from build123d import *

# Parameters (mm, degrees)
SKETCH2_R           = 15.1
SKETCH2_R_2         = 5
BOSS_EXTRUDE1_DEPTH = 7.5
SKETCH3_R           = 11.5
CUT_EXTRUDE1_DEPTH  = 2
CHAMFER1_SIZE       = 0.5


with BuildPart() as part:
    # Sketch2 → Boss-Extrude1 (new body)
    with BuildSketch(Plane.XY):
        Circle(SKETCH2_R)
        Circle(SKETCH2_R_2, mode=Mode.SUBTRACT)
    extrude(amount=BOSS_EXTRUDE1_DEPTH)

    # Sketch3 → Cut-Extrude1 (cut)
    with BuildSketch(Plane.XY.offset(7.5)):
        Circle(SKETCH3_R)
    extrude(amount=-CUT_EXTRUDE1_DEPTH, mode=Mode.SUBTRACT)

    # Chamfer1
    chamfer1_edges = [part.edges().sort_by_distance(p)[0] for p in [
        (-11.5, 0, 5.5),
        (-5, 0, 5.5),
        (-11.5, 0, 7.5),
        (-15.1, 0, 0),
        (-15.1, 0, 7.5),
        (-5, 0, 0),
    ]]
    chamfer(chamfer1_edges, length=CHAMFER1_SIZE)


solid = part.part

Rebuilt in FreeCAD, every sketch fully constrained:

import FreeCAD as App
import Part
import Sketcher

V = App.Vector


def edges_at(feature, points):
    """Names of the edges that pass closest to the given points."""
    edges = feature.Shape.Edges
    near = lambda p: min(range(len(edges)), key=lambda i: edges[i].distToShape(Part.Vertex(*p))[0])
    return sorted({f"Edge{near(p) + 1}" for p in points})

doc = App.newDocument("Part")
body = doc.addObject("PartDesign::Body", "Body")

sketch1 = body.newObject("Sketcher::SketchObject", "Sketch")
sketch1.AttachmentSupport = (doc.getObject("XY_Plane"), [""])
sketch1.MapMode = "FlatFace"
sketch1.addGeometry([
    Part.Circle(V(0, 0, 0), V(0, 0, 1), 15),
    Part.Circle(V(0, 0, 0), V(0, 0, 1), 5),
], False)
sketch1.addConstraint([
    Sketcher.Constraint("Coincident", 0, 3, -1, 1),
    Sketcher.Constraint("Coincident", 1, 3, -1, 1),
    Sketcher.Constraint("Diameter", 1, 10.0),
    Sketcher.Constraint("Diameter", 0, 30.2),
])
pad1 = body.newObject("PartDesign::Pad", "Pad")
pad1.Profile = sketch1
pad1.Length = 7.5

sketch2 = body.newObject("Sketcher::SketchObject", "Sketch001")
sketch2.AttachmentSupport = (doc.getObject("XY_Plane"), [""])
sketch2.MapMode = "FlatFace"
sketch2.AttachmentOffset = App.Placement(V(0, 0, 7.5), App.Rotation())
sketch2.addGeometry(Part.Circle(V(0, 0, 0), V(0, 0, 1), 12), False)
sketch2.addConstraint([
    Sketcher.Constraint("Coincident", 0, 3, -1, 1),
    Sketcher.Constraint("Diameter", 0, 23.0),
])
pocket1 = body.newObject("PartDesign::Pocket", "Pocket")
pocket1.Profile = sketch2
pocket1.Length = 2
doc.recompute()

chamfer = body.newObject("PartDesign::Chamfer", "Chamfer")
chamfer.Base = (pocket1, edges_at(pocket1, [
    (-11.5, 0, 5.5),
    (-5, 0, 5.5),
    (-11.5, 0, 7.5),
    (-15.1, 0, 0),
    (-15.1, 0, 7.5),
    (-5, 0, 0),
]))
chamfer.Size = 0.5

doc.recompute()
